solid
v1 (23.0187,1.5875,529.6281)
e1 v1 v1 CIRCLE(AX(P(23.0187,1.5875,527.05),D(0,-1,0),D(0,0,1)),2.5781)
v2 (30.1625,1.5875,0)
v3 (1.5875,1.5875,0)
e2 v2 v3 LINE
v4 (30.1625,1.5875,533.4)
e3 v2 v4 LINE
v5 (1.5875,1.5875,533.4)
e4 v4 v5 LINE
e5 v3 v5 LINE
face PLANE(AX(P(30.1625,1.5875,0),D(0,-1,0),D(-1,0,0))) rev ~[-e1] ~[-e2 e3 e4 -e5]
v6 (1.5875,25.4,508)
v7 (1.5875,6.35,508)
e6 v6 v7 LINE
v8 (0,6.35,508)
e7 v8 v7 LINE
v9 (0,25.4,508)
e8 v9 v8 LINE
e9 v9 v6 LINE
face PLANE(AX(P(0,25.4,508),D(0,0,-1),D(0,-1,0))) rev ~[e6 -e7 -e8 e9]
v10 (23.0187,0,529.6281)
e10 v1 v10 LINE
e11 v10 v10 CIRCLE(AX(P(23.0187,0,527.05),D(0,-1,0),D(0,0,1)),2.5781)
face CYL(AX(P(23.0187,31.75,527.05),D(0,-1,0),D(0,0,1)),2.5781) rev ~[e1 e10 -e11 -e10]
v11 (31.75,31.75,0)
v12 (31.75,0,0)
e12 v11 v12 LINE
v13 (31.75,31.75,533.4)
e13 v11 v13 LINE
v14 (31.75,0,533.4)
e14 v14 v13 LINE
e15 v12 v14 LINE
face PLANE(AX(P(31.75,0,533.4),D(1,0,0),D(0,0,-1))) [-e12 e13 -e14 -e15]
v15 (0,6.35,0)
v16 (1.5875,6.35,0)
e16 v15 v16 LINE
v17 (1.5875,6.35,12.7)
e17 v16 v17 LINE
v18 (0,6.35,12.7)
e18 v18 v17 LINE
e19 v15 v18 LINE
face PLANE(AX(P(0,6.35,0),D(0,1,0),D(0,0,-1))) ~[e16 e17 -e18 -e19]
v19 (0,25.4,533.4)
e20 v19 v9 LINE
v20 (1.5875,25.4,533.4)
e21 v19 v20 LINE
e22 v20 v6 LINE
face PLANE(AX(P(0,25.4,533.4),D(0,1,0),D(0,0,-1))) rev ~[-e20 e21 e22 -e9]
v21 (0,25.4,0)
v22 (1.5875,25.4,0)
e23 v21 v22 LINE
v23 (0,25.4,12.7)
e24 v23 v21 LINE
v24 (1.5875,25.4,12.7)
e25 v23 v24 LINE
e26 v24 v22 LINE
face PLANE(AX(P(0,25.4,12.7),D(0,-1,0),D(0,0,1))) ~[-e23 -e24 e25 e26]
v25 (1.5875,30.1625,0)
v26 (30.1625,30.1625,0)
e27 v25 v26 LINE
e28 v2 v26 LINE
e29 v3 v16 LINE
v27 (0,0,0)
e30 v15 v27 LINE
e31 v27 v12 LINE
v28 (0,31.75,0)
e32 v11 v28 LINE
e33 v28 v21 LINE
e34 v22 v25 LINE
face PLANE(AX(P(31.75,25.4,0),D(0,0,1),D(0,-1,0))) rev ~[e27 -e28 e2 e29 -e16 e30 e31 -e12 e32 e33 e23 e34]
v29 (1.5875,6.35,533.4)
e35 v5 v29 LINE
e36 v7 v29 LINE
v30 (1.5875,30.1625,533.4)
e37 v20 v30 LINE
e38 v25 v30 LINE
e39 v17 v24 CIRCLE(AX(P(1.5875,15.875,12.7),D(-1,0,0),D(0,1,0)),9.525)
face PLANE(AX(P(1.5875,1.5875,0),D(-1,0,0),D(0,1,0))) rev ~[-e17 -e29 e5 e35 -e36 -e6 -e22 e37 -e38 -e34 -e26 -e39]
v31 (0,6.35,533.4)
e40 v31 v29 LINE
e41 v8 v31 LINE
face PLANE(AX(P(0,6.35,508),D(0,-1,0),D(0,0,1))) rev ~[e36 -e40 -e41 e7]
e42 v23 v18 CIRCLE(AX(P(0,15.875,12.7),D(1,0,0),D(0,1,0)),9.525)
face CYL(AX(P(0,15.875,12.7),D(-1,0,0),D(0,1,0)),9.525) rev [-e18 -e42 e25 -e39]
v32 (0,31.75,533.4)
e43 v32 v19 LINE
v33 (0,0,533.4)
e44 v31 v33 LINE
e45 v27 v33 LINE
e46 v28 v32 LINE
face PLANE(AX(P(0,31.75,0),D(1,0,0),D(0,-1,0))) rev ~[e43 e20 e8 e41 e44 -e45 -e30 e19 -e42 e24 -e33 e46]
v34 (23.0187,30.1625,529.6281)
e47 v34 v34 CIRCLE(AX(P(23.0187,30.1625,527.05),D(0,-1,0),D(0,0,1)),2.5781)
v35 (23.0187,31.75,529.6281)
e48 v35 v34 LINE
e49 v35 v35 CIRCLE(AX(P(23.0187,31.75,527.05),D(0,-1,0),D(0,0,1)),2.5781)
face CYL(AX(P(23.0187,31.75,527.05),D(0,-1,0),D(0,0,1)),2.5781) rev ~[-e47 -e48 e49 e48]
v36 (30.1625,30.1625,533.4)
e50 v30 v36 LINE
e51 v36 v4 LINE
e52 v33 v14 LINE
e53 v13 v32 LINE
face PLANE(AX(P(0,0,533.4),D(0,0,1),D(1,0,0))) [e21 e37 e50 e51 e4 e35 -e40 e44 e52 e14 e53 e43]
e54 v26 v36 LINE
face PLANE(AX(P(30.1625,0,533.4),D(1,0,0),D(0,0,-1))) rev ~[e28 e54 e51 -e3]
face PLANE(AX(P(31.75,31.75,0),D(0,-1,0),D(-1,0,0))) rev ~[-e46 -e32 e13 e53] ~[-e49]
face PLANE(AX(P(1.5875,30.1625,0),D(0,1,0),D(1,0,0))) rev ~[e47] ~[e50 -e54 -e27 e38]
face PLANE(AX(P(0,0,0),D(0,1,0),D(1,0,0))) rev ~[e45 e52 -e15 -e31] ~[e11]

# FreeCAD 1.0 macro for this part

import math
import FreeCAD as App
import Part
import Sketcher
Q = App.Units.Quantity

doc = App.newDocument("Part")
body = doc.addObject("PartDesign::Body", "Body")

sketch1 = doc.addObject("Sketcher::SketchObject", "Sketch")
body.addObject(sketch1)
sketch1.AttachmentSupport = (doc.XY_Plane, [""])
sketch1.MapMode = "FlatFace"
sketch1.addGeometry([
    Part.LineSegment(App.Vector(0, 31.75, 0), App.Vector(0, 0, 0)),
    Part.LineSegment(App.Vector(0, 0, 0), App.Vector(31.75, 0, 0)),
    Part.LineSegment(App.Vector(31.75, 0, 0), App.Vector(31.75, 31.75, 0)),
    Part.LineSegment(App.Vector(31.75, 31.75, 0), App.Vector(0, 31.75, 0)),
    Part.LineSegment(App.Vector(1.5875, 1.5875, 0), App.Vector(1.5875, 30.1625, 0)),
    Part.LineSegment(App.Vector(1.5875, 30.1625, 0), App.Vector(30.1625, 30.1625, 0)),
    Part.LineSegment(App.Vector(30.1625, 30.1625, 0), App.Vector(30.1625, 1.5875, 0)),
    Part.LineSegment(App.Vector(30.1625, 1.5875, 0), App.Vector(1.5875, 1.5875, 0)),
], False)
sketch1.addConstraint([
    Sketcher.Constraint("Coincident", 0, 2, 1, 1),
    Sketcher.Constraint("Coincident", 1, 2, 2, 1),
    Sketcher.Constraint("Coincident", 2, 2, 3, 1),
    Sketcher.Constraint("Coincident", 3, 2, 0, 1),
    Sketcher.Constraint("Coincident", 4, 2, 5, 1),
    Sketcher.Constraint("Coincident", 5, 2, 6, 1),
    Sketcher.Constraint("Coincident", 6, 2, 7, 1),
    Sketcher.Constraint("Coincident", 7, 2, 4, 1),
    Sketcher.Constraint("Vertical", 0),
    Sketcher.Constraint("Horizontal", 1),
    Sketcher.Constraint("Vertical", 2),
    Sketcher.Constraint("Horizontal", 3),
    Sketcher.Constraint("Vertical", 4),
    Sketcher.Constraint("Horizontal", 5),
    Sketcher.Constraint("Vertical", 6),
    Sketcher.Constraint("Horizontal", 7),
    Sketcher.Constraint("Coincident", 0, 2, -1, 1),
    Sketcher.Constraint("Equal", 3, 0),
    Sketcher.Constraint("Equal", 7, 4),
    Sketcher.Constraint("DistanceX", 1, 1, 1, 2, Q("1.25 in")),
    Sketcher.Constraint("DistanceX", -1, 1, 4, 2, Q("0.0625 in")),
    Sketcher.Constraint("DistanceY", -1, 1, 6, 2, Q("0.0625 in")),
    Sketcher.Constraint("DistanceY", 4, 2, 3, 2, Q("0.0625 in")),
])
pad1 = doc.addObject("PartDesign::Pad", "Pad")
body.addObject(pad1)
pad1.Profile = sketch1
pad1.Length = Q("21 in")

sketch2 = doc.addObject("Sketcher::SketchObject", "Sketch001")
body.addObject(sketch2)
sketch2.AttachmentSupport = (doc.YZ_Plane, [""])
sketch2.MapMode = "FlatFace"
sketch2.AttachmentOffset = App.Placement(App.Vector(0, 0, 1.25 * 25.4), App.Rotation())
sketch2.addGeometry([
    Part.ArcOfCircle(Part.Circle(App.Vector(15.875, 0, 0), App.Vector(0, 0, 1), 9.525), math.radians(180), math.radians(360)),
    Part.LineSegment(App.Vector(25.4, 0, 0), App.Vector(25.4, 12.7, 0)),
    Part.ArcOfCircle(Part.Circle(App.Vector(15.875, 12.7, 0), App.Vector(0, 0, 1), 9.525), math.radians(0), math.radians(180)),
    Part.LineSegment(App.Vector(6.35, 12.7, 0), App.Vector(6.35, 0, 0)),
], False)
sketch2.addConstraint([
    Sketcher.Constraint("Tangent", 0, 2, 1, 1),
    Sketcher.Constraint("Tangent", 1, 2, 2, 1),
    Sketcher.Constraint("Tangent", 2, 2, 3, 1),
    Sketcher.Constraint("Tangent", 3, 2, 0, 1),
    Sketcher.Constraint("Vertical", 1),
    Sketcher.Constraint("Vertical", 3),
    Sketcher.Constraint("PointOnObject", 0, 3, -1),
    Sketcher.Constraint("DistanceY", 1, 1, 1, 2, Q("0.5 in")),
    Sketcher.Constraint("Radius", 0, Q("0.375 in")),
    Sketcher.Constraint("DistanceX", -1, 1, 0, 3, Q("0.625 in")),
])
pocket1 = doc.addObject("PartDesign::Pocket", "Pocket")
body.addObject(pocket1)
pocket1.Profile = sketch2
pocket1.Length = Q("1 in")
doc.recompute()

datumplane = doc.addObject("PartDesign::Plane", "DatumPlane")
body.addObject(datumplane)
datumplane.AttachmentSupport = (doc.YZ_Plane, [""])
datumplane.MapMode = "FlatFace"
datumplane.AttachmentOffset = App.Placement(App.Vector(0, 0, 0.625 * 25.4), App.Rotation())
mirrored = doc.addObject("PartDesign::Mirrored", "Mirrored")
body.addObject(mirrored)
mirrored.Originals = [pocket1]
mirrored.MirrorPlane = (datumplane, [""])
body.Tip = mirrored

sketch3 = doc.addObject("Sketcher::SketchObject", "Sketch002")
body.addObject(sketch3)
sketch3.AttachmentSupport = (doc.YZ_Plane, [""])
sketch3.MapMode = "FlatFace"
sketch3.AttachmentOffset = App.Placement(App.Vector(0, 0, 1.25 * 25.4), App.Rotation())
sketch3.addGeometry([
    Part.LineSegment(App.Vector(6.35, 0, 0), App.Vector(25.4, 0, 0)),
    Part.LineSegment(App.Vector(25.4, 0, 0), App.Vector(25.4, 12.7, 0)),
    Part.ArcOfCircle(Part.Circle(App.Vector(15.875, 12.7, 0), App.Vector(0, 0, 1), 9.525), math.radians(0), math.radians(180)),
    Part.LineSegment(App.Vector(6.35, 12.7, 0), App.Vector(6.35, 0, 0)),
], False)
sketch3.addConstraint([
    Sketcher.Constraint("Coincident", 0, 2, 1, 1),
    Sketcher.Constraint("Tangent", 1, 2, 2, 1),
    Sketcher.Constraint("Tangent", 2, 2, 3, 1),
    Sketcher.Constraint("Coincident", 3, 2, 0, 1),
    Sketcher.Constraint("Horizontal", 0),
    Sketcher.Constraint("Vertical", 1),
    Sketcher.Constraint("Vertical", 3),
    Sketcher.Constraint("PointOnObject", 0, 2, -1),
    Sketcher.Constraint("DistanceY", 1, 1, 1, 2, Q("0.5 in")),
    Sketcher.Constraint("DistanceX", -1, 1, 0, 2, Q("1 in")),
    Sketcher.Constraint("Radius", 2, Q("0.375 in")),
])
pad2 = doc.addObject("PartDesign::Pad", "Pad001")
body.addObject(pad2)
pad2.Profile = sketch3
pad2.Length = Q("0.0625 in")
pad2.Reversed = True

sketch4 = doc.addObject("Sketcher::SketchObject", "Sketch003")
body.addObject(sketch4)
sketch4.AttachmentSupport = (doc.XZ_Plane, [""])
sketch4.MapMode = "FlatFace"
sketch4.AttachmentOffset = App.Placement(App.Vector(0, 0, -1.25 * 25.4), App.Rotation())
sketch4.addGeometry(Part.Circle(App.Vector(23.0187, 527.05, 0), App.Vector(0, 0, 1), 2.5781), False)
sketch4.addConstraint([
    Sketcher.Constraint("Diameter", 0, Q("0.203 in")),
    Sketcher.Constraint("DistanceY", -1, 1, 0, 3, Q("20.75 in")),
    Sketcher.Constraint("DistanceX", -1, 1, 0, 3, Q("0.906248 in")),
])
doc.recompute()
hole = doc.addObject("PartDesign::Hole", "Hole")
body.addObject(hole)
hole.Profile = sketch4
hole.ThreadType = "None"
hole.Diameter = Q("0.203 in")
hole.DepthType = "Dimension"
hole.Depth = Q("3 in")
hole.DrillPoint = "Angled"
hole.DrillPointAngle = 118
hole.Reversed = True

sketch5 = doc.addObject("Sketcher::SketchObject", "Sketch004")
body.addObject(sketch5)
sketch5.AttachmentSupport = (doc.YZ_Plane, [""])
sketch5.MapMode = "FlatFace"
sketch5.addGeometry([
    Part.LineSegment(App.Vector(6.35, 508, 0), App.Vector(6.35, 533.4, 0)),
    Part.LineSegment(App.Vector(6.35, 533.4, 0), App.Vector(25.4, 533.4, 0)),
    Part.LineSegment(App.Vector(25.4, 533.4, 0), App.Vector(25.4, 508, 0)),
    Part.LineSegment(App.Vector(25.4, 508, 0), App.Vector(6.35, 508, 0)),
], False)
sketch5.addConstraint([
    Sketcher.Constraint("Coincident", 0, 2, 1, 1),
    Sketcher.Constraint("Coincident", 1, 2, 2, 1),
    Sketcher.Constraint("Coincident", 2, 2, 3, 1),
    Sketcher.Constraint("Coincident", 3, 2, 0, 1),
    Sketcher.Constraint("Vertical", 0),
    Sketcher.Constraint("Horizontal", 1),
    Sketcher.Constraint("Vertical", 2),
    Sketcher.Constraint("Horizontal", 3),
    Sketcher.Constraint("DistanceY", 0, 1, 0, 2, Q("1 in")),
    Sketcher.Constraint("DistanceX", -1, 1, 1, 2, Q("1 in")),
    Sketcher.Constraint("DistanceX", -1, 1, 0, 2, Q("0.25 in")),
    Sketcher.Constraint("DistanceY", -1, 1, 0, 2, Q("21 in")),
])
pocket2 = doc.addObject("PartDesign::Pocket", "Pocket001")
body.addObject(pocket2)
pocket2.Profile = sketch5
pocket2.Length = Q("0.23 in")
pocket2.Reversed = True

doc.recompute()
